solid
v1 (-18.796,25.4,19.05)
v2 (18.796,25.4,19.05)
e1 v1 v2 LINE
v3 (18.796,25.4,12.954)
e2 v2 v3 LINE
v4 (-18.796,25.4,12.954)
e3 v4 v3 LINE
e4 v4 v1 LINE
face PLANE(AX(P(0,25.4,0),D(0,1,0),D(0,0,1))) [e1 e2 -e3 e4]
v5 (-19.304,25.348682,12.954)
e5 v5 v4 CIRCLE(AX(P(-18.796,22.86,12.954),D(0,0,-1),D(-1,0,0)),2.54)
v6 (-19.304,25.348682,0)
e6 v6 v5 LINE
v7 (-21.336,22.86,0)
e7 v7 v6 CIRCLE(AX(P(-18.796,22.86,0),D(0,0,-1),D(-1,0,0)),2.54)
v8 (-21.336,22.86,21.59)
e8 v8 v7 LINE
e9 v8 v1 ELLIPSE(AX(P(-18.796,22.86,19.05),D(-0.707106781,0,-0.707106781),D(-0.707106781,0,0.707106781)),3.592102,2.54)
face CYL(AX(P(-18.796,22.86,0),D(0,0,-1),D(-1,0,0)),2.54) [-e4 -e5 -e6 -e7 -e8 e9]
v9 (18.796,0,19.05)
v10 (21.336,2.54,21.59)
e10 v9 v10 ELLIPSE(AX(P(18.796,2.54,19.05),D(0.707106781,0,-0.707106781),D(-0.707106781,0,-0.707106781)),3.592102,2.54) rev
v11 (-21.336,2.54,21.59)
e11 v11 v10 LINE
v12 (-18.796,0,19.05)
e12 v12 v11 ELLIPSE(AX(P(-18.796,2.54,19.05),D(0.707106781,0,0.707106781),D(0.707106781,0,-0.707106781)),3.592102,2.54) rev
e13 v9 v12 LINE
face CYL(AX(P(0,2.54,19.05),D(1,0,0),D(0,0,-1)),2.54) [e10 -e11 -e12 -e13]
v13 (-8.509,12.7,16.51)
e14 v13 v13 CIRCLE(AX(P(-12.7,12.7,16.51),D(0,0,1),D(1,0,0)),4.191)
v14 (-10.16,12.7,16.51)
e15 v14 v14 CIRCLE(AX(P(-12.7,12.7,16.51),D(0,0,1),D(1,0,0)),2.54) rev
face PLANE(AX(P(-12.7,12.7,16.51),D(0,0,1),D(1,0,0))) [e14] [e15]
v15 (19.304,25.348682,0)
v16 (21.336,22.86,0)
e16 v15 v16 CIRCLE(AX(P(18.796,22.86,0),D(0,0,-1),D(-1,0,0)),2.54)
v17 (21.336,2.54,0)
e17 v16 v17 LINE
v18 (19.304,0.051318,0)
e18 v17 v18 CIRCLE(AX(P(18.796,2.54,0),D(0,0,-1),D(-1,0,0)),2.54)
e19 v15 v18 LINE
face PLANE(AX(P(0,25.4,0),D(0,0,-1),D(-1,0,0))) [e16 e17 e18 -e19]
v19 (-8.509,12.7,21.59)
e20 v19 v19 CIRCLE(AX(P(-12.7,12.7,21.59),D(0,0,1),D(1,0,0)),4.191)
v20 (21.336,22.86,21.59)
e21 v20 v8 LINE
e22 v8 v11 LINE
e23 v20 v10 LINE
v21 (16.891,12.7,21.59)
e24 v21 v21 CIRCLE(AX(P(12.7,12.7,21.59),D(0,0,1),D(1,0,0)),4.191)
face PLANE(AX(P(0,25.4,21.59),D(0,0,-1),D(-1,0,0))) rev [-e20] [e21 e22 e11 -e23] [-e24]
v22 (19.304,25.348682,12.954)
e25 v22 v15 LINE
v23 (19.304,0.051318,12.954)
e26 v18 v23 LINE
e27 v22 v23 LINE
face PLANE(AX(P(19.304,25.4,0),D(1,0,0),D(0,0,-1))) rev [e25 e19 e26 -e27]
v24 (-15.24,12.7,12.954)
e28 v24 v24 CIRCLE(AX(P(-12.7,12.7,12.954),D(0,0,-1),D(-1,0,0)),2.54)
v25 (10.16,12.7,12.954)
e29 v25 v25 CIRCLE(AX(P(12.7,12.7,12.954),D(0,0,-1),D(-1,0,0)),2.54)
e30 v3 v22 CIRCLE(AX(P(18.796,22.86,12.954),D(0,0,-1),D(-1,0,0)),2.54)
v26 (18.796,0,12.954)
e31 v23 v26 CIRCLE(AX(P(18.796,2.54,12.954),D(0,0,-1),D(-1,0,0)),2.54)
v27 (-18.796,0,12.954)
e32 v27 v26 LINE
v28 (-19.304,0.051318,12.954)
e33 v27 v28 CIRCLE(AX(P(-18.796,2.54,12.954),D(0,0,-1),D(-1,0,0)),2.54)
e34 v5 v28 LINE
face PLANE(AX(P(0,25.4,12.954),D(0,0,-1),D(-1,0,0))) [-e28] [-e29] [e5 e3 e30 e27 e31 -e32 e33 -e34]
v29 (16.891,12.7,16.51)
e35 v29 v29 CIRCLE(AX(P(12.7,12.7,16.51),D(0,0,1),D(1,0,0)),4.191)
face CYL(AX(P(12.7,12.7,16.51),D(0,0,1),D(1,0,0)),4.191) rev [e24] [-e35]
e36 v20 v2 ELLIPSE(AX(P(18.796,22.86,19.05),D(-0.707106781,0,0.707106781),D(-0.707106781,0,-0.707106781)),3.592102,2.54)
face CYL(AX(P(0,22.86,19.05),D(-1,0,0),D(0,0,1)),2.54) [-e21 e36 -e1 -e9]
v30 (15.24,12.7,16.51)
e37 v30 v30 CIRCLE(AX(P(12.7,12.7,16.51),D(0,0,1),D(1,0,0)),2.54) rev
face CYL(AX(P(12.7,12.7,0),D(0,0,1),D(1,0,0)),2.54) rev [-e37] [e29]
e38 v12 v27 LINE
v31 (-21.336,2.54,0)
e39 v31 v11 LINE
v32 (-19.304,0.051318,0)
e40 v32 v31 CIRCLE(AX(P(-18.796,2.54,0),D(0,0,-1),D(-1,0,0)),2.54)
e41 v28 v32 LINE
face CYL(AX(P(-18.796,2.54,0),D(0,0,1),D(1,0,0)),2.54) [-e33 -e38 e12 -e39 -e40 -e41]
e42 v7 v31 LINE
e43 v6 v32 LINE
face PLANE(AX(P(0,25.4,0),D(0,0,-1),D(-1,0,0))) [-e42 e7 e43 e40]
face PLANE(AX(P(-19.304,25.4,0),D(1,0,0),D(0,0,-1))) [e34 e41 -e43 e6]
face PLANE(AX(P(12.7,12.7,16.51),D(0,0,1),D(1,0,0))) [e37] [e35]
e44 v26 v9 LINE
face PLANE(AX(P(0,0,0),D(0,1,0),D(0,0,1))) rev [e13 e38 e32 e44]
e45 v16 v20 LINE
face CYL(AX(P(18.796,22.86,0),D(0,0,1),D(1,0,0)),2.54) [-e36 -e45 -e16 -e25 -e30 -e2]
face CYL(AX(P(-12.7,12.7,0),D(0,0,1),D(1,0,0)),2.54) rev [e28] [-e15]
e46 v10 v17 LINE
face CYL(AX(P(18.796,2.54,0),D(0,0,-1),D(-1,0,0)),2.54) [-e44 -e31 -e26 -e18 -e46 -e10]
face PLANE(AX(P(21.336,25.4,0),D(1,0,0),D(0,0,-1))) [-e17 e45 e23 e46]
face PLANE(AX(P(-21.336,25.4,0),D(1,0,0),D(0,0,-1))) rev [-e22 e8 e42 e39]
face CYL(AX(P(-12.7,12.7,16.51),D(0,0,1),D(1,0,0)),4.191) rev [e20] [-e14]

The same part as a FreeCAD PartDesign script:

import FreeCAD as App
import Part
import Sketcher
from FreeCAD import Vector
Q = App.Units.Quantity


def edges_at(feature, points):
    """Names of the edges that pass closest to the given points."""
    edges = feature.Shape.Edges
    near = lambda p: min(range(len(edges)), key=lambda i: edges[i].distToShape(Part.Vertex(*p))[0])
    return sorted({f"Edge{near(p) + 1}" for p in points})


def add_polygon(sketch, points):
    """Adds a closed chain of lines whose ends are joined by coincident constraints."""
    first, n = sketch.GeometryCount, len(points)
    for a, b in zip(points, points[1:] + points[:1]):
        sketch.addGeometry(Part.LineSegment(App.Vector(*a, 0), App.Vector(*b, 0)), False)
    for i in range(n):
        sketch.addConstraint(Sketcher.Constraint("Coincident", first + i, 2, first + (i + 1) % n, 1))

doc = App.newDocument("Part")
body = doc.addObject("PartDesign::Body", "Body")

# Sketch on XZ plane
sketch1 = doc.addObject("Sketcher::SketchObject", "Sketch")
body.addObject(sketch1)
sketch1.AttachmentSupport = (doc.XZ_Plane, [""])
sketch1.MapMode = "FlatFace"
add_polygon(sketch1, [(-19.304, 0), (-21.336, 0), (-21.336, 21.59), (21.336, 21.59), (21.336, 0), (19.304, 0), (19.304, 12.954), (-19.304, 12.954)])  # lines 0-7
sketch1.addConstraint([
    Sketcher.Constraint("Horizontal", 0),
    Sketcher.Constraint("Vertical", 1),
    Sketcher.Constraint("Horizontal", 2),
    Sketcher.Constraint("Vertical", 3),
    Sketcher.Constraint("Horizontal", 4),
    Sketcher.Constraint("Vertical", 5),
    Sketcher.Constraint("Horizontal", 6),
    Sketcher.Constraint("Vertical", 7),
    Sketcher.Constraint("Symmetric", 0, 2, 3, 2, -1, 1),
    Sketcher.Constraint("Symmetric", 4, 2, 7, 2, -2),
    Sketcher.Constraint("DistanceX", 0, 2, 0, 1, Q("0.08 in")),
    Sketcher.Constraint("DistanceX", 2, 1, 2, 2, Q("1.68 in")),
    Sketcher.Constraint("DistanceY", 1, 1, 1, 2, Q("0.85 in")),
    Sketcher.Constraint("DistanceY", 5, 1, 5, 2, Q("0.51 in")),
])
pad1 = doc.addObject("PartDesign::Pad", "Pad")
body.addObject(pad1)
pad1.Profile = sketch1
pad1.Length = Q("1 in")
pad1.Reversed = True

# Sketch on XY plane
sketch2 = doc.addObject("Sketcher::SketchObject", "Sketch001")
body.addObject(sketch2)
sketch2.AttachmentSupport = (doc.XY_Plane, [""])
sketch2.MapMode = "FlatFace"
sketch2.AttachmentOffset = App.Placement(Vector(0, 0, 0.85 * 25.4), App.Rotation())
sketch2.addGeometry([
    Part.Circle(Vector(-12.7, 12.7, 0), Vector(0, 0, 1), 2.54),
    Part.Circle(Vector(12.7, 12.7, 0), Vector(0, 0, 1), 2.54),
], False)
sketch2.addConstraint([
    Sketcher.Constraint("Equal", 0, 1),
    Sketcher.Constraint("Symmetric", 0, 3, 1, 3, -2),
    Sketcher.Constraint("Diameter", 0, Q("0.2 in")),
    Sketcher.Constraint("DistanceX", 0, 3, 1, 3, Q("1 in")),
    Sketcher.Constraint("DistanceY", -1, 1, 0, 3, Q("0.5 in")),
])
pocket1 = doc.addObject("PartDesign::Pocket", "Pocket")
body.addObject(pocket1)
pocket1.Profile = sketch2
pocket1.Type = "ThroughAll"

# Sketch on XY plane
sketch3 = doc.addObject("Sketcher::SketchObject", "Sketch002")
body.addObject(sketch3)
sketch3.AttachmentSupport = (doc.XY_Plane, [""])
sketch3.MapMode = "FlatFace"
sketch3.AttachmentOffset = App.Placement(Vector(0, 0, 0.85 * 25.4), App.Rotation())
sketch3.addGeometry([
    Part.Circle(Vector(-12.7, 12.7, 0), Vector(0, 0, 1), 4.191),
    Part.Circle(Vector(12.7, 12.7, 0), Vector(0, 0, 1), 4.191),
], False)
sketch3.addConstraint([
    Sketcher.Constraint("Equal", 0, 1),
    Sketcher.Constraint("Symmetric", 0, 3, 1, 3, -2),
    Sketcher.Constraint("Diameter", 0, Q("0.33 in")),
    Sketcher.Constraint("DistanceX", 0, 3, 1, 3, Q("1 in")),
    Sketcher.Constraint("DistanceY", -1, 1, 0, 3, Q("0.5 in")),
])
pocket2 = doc.addObject("PartDesign::Pocket", "Pocket001")
body.addObject(pocket2)
pocket2.Profile = sketch3
pocket2.Length = Q("0.2 in")
doc.recompute()

fillet = doc.addObject("PartDesign::Fillet", "Fillet")
body.addObject(fillet)
fillet.Base = (pocket2, edges_at(pocket2, [(-21.336, 25.4, 10.795), (21.336, 25.4, 10.795), (0, 25.4, 21.59)]))
fillet.Radius = Q("0.1 in")
doc.recompute()

fillet2 = doc.addObject("PartDesign::Fillet", "Fillet001")
body.addObject(fillet2)
fillet2.Base = (fillet, edges_at(fillet, [(-21.336, 0, 10.795), (0, 0, 21.59), (21.336, 0, 10.795)]))
fillet2.Radius = Q("0.1 in")

doc.recompute()
